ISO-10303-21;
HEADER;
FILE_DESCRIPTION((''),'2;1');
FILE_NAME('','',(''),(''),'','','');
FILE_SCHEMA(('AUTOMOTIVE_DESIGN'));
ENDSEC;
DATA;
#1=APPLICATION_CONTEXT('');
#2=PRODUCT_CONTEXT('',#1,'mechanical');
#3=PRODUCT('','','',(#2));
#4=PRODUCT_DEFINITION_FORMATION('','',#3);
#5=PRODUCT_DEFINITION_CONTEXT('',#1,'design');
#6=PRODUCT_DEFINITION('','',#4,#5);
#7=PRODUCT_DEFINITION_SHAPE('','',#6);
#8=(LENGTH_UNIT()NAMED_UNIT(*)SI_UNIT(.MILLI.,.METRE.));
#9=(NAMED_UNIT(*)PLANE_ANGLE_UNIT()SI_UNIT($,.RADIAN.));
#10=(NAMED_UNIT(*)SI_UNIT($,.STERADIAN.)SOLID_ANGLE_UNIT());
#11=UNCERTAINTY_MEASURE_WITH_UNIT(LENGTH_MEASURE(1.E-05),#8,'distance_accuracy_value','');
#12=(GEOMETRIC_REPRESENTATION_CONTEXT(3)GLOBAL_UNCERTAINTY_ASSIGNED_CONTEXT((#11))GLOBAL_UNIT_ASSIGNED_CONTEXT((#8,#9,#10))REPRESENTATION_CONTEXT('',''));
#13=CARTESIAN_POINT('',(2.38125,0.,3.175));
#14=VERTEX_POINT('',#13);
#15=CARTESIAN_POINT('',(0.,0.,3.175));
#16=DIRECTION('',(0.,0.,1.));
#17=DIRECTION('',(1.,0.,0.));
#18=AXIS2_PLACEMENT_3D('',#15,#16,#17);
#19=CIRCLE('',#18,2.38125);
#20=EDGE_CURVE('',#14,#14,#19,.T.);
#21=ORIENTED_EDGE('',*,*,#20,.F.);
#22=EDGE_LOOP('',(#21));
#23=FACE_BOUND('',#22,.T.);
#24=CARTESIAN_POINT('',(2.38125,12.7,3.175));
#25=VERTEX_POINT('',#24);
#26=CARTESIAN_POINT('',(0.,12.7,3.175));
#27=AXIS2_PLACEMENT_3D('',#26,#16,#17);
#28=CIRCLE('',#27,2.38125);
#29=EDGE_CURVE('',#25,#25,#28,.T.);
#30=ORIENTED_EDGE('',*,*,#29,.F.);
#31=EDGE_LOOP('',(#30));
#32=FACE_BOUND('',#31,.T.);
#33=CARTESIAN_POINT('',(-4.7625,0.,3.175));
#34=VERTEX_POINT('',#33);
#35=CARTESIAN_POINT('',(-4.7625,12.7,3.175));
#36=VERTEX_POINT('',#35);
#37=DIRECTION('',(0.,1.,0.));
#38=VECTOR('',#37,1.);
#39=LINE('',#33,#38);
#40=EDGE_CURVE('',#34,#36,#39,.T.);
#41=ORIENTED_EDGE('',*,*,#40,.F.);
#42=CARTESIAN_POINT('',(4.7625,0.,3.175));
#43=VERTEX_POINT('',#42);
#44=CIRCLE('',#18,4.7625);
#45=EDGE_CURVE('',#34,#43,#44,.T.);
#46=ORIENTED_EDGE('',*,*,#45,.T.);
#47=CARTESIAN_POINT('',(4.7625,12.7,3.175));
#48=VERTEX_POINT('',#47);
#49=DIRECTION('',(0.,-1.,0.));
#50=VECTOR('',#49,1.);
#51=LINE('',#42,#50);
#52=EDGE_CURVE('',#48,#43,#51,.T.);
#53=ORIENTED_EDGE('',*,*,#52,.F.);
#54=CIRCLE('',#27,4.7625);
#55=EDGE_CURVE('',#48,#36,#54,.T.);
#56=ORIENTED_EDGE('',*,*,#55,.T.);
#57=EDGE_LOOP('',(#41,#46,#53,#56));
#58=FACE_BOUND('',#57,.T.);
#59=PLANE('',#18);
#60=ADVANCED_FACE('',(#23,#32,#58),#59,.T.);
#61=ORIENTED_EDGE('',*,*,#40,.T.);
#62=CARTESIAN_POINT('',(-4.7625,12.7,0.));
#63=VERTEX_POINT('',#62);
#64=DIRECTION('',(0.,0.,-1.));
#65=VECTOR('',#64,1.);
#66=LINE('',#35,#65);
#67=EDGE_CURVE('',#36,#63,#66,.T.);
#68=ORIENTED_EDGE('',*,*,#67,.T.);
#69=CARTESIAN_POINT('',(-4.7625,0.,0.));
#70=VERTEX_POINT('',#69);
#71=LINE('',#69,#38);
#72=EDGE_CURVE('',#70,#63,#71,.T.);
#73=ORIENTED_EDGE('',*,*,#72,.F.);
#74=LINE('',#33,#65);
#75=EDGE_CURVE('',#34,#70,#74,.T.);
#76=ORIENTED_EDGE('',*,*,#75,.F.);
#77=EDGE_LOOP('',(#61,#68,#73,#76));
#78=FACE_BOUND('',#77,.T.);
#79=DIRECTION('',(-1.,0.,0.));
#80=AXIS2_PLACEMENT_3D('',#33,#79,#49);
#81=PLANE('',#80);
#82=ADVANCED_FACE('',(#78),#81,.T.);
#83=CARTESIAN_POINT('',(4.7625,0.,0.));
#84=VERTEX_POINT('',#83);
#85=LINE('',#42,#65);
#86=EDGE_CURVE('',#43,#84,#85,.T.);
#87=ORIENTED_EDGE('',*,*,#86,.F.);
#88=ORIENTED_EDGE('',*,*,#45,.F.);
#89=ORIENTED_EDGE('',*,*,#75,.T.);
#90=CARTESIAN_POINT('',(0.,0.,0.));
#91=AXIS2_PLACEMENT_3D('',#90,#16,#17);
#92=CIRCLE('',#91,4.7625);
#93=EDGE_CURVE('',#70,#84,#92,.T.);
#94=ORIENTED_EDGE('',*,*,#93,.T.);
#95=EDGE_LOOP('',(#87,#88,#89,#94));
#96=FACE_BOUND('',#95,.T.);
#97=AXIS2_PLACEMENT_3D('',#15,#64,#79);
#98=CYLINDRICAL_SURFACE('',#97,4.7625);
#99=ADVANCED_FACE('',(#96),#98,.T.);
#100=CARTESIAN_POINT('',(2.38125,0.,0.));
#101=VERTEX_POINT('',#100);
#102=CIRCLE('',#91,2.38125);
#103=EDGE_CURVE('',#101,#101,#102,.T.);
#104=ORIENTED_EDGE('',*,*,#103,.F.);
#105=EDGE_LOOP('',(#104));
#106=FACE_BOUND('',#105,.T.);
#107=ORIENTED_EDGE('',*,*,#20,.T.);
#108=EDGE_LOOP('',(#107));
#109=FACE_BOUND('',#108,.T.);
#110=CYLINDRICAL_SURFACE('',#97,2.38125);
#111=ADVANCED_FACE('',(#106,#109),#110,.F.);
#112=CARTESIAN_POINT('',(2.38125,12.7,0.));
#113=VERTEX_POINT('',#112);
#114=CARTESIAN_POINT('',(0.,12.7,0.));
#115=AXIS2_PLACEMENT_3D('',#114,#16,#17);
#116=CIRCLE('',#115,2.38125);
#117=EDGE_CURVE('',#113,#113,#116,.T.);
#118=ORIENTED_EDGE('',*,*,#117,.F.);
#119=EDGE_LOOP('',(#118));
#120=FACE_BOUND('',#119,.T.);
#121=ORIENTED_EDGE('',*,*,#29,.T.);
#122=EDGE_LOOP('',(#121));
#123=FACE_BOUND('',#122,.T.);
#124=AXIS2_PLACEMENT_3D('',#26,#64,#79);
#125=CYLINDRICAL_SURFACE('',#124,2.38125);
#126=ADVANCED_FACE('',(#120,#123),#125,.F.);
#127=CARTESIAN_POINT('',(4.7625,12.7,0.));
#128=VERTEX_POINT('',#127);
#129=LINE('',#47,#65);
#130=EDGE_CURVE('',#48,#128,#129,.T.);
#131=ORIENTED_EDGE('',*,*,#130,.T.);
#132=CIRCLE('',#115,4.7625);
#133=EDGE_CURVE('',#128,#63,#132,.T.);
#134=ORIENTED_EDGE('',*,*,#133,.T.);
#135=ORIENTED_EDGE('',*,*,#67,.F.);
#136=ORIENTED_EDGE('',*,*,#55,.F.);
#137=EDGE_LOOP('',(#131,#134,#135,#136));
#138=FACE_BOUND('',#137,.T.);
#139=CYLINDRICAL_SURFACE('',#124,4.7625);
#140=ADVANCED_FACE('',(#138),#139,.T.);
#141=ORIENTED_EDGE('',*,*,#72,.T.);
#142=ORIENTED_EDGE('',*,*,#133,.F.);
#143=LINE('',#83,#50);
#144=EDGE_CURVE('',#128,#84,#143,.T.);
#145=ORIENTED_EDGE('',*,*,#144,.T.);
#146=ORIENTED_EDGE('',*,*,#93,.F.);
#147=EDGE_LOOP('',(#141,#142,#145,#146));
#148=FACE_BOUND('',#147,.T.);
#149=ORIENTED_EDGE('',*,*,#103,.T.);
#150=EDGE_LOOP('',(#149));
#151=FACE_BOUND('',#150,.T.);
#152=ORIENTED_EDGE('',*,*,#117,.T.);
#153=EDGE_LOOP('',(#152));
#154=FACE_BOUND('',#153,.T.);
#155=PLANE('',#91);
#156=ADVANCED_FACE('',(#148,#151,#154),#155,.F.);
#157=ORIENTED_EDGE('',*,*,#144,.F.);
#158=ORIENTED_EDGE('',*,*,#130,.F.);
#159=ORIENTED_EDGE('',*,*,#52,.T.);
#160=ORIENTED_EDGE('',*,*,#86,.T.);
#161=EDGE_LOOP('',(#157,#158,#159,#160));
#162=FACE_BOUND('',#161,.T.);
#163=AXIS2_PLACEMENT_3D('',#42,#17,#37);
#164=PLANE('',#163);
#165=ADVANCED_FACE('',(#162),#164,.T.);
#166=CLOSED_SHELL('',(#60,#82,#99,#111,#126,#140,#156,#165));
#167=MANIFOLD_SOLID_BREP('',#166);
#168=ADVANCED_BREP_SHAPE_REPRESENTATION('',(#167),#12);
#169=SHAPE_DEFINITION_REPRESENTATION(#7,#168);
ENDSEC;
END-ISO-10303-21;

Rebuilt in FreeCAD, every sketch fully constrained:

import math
import FreeCAD as App
import Part
import Sketcher
from FreeCAD import Vector
Q = App.Units.Quantity

doc = App.newDocument("Part")
body = doc.addObject("PartDesign::Body", "Body")

# Sketch on XY plane
sketch1 = body.newObject("Sketcher::SketchObject", "Sketch")
sketch1.AttachmentSupport = (doc.getObject("XY_Plane"), [""])
sketch1.MapMode = "FlatFace"
sketch1.addGeometry([
    Part.LineSegment(Vector(-4.8, 12.7, 0), Vector(-4.8, 0, 0)),  # 0
    Part.ArcOfCircle(Part.Circle(Vector(0, 0, 0), Vector(0, 0, 1), 4.8), math.radians(180), math.radians(360)),  # 1
    Part.LineSegment(Vector(4.8, 0, 0), Vector(4.8, 12.7, 0)),  # 2
    Part.ArcOfCircle(Part.Circle(Vector(0, 12.7, 0), Vector(0, 0, 1), 4.8), math.radians(0), math.radians(180)),  # 3
    Part.Circle(Vector(0, 0, 0), Vector(0, 0, 1), 2.4),  # 4
    Part.Circle(Vector(0, 12.7, 0), Vector(0, 0, 1), 2.4),  # 5
], False)
sketch1.addConstraint([
    Sketcher.Constraint("Tangent", 0, 2, 1, 1),
    Sketcher.Constraint("Tangent", 1, 2, 2, 1),
    Sketcher.Constraint("Tangent", 2, 2, 3, 1),
    Sketcher.Constraint("Tangent", 3, 2, 0, 1),
    Sketcher.Constraint("Vertical", 0),
    Sketcher.Constraint("Vertical", 2),
    Sketcher.Constraint("Coincident", 1, 3, -1, 1),
    Sketcher.Constraint("Coincident", 4, 3, -1, 1),
    Sketcher.Constraint("Coincident", 5, 3, 3, 3),
    Sketcher.Constraint("Equal", 4, 5),
    Sketcher.Constraint("Diameter", 4, Q("0.1875 in")),
    Sketcher.Constraint("DistanceY", 0, 2, 0, 1, Q("0.5 in")),
    Sketcher.Constraint("Radius", 1, Q("0.1875 in")),
])
pad1 = body.newObject("PartDesign::Pad", "Pad")
pad1.Profile = sketch1
pad1.Length = Q("0.125 in")

doc.recompute()
